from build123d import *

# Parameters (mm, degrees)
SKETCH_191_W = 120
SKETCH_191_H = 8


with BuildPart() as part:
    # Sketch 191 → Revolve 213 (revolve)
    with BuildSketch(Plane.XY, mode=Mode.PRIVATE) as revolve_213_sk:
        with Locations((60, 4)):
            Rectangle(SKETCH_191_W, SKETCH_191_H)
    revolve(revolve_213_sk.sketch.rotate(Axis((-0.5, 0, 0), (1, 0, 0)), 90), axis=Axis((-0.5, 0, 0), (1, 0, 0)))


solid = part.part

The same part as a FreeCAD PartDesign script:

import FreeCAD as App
import Part
import Sketcher

V = App.Vector
Q = App.Units.Quantity

doc = App.newDocument("Part")
body = doc.addObject("PartDesign::Body", "Body")

sketch1 = body.newObject("Sketcher::SketchObject", "Sketch")
sketch1.AttachmentSupport = (doc.getObject("XY_Plane"), [""])
sketch1.MapMode = "FlatFace"
sketch1.addGeometry(Part.LineSegment(V(0, 8, 0), V(0, 0, 0)), False)
sketch1.addGeometry(Part.LineSegment(V(0, 0, 0), V(120, 0, 0)), False)
sketch1.addGeometry(Part.LineSegment(V(120, 0, 0), V(120, 8, 0)), False)
sketch1.addGeometry(Part.LineSegment(V(120, 8, 0), V(0, 8, 0)), False)
sketch1.addConstraint(Sketcher.Constraint("Coincident", 0, 2, 1, 1))
sketch1.addConstraint(Sketcher.Constraint("Coincident", 1, 2, 2, 1))
sketch1.addConstraint(Sketcher.Constraint("Coincident", 2, 2, 3, 1))
sketch1.addConstraint(Sketcher.Constraint("Coincident", 3, 2, 0, 1))
sketch1.addConstraint(Sketcher.Constraint("Vertical", 0))
sketch1.addConstraint(Sketcher.Constraint("Horizontal", 1))
sketch1.addConstraint(Sketcher.Constraint("Vertical", 2))
sketch1.addConstraint(Sketcher.Constraint("Horizontal", 3))
sketch1.addConstraint(Sketcher.Constraint("Coincident", 0, 2, -1, 1))
sketch1.addConstraint(Sketcher.Constraint("DistanceX", 1, 1, 1, 2, Q("120 mm")))
sketch1.addConstraint(Sketcher.Constraint("DistanceY", 0, 2, 0, 1, Q("8 mm")))
revolution = body.newObject("PartDesign::Revolution", "Revolution")
revolution.Profile = sketch1
revolution.ReferenceAxis = (sketch1, ["H_Axis"])
revolution.Angle = 360

doc.recompute()
